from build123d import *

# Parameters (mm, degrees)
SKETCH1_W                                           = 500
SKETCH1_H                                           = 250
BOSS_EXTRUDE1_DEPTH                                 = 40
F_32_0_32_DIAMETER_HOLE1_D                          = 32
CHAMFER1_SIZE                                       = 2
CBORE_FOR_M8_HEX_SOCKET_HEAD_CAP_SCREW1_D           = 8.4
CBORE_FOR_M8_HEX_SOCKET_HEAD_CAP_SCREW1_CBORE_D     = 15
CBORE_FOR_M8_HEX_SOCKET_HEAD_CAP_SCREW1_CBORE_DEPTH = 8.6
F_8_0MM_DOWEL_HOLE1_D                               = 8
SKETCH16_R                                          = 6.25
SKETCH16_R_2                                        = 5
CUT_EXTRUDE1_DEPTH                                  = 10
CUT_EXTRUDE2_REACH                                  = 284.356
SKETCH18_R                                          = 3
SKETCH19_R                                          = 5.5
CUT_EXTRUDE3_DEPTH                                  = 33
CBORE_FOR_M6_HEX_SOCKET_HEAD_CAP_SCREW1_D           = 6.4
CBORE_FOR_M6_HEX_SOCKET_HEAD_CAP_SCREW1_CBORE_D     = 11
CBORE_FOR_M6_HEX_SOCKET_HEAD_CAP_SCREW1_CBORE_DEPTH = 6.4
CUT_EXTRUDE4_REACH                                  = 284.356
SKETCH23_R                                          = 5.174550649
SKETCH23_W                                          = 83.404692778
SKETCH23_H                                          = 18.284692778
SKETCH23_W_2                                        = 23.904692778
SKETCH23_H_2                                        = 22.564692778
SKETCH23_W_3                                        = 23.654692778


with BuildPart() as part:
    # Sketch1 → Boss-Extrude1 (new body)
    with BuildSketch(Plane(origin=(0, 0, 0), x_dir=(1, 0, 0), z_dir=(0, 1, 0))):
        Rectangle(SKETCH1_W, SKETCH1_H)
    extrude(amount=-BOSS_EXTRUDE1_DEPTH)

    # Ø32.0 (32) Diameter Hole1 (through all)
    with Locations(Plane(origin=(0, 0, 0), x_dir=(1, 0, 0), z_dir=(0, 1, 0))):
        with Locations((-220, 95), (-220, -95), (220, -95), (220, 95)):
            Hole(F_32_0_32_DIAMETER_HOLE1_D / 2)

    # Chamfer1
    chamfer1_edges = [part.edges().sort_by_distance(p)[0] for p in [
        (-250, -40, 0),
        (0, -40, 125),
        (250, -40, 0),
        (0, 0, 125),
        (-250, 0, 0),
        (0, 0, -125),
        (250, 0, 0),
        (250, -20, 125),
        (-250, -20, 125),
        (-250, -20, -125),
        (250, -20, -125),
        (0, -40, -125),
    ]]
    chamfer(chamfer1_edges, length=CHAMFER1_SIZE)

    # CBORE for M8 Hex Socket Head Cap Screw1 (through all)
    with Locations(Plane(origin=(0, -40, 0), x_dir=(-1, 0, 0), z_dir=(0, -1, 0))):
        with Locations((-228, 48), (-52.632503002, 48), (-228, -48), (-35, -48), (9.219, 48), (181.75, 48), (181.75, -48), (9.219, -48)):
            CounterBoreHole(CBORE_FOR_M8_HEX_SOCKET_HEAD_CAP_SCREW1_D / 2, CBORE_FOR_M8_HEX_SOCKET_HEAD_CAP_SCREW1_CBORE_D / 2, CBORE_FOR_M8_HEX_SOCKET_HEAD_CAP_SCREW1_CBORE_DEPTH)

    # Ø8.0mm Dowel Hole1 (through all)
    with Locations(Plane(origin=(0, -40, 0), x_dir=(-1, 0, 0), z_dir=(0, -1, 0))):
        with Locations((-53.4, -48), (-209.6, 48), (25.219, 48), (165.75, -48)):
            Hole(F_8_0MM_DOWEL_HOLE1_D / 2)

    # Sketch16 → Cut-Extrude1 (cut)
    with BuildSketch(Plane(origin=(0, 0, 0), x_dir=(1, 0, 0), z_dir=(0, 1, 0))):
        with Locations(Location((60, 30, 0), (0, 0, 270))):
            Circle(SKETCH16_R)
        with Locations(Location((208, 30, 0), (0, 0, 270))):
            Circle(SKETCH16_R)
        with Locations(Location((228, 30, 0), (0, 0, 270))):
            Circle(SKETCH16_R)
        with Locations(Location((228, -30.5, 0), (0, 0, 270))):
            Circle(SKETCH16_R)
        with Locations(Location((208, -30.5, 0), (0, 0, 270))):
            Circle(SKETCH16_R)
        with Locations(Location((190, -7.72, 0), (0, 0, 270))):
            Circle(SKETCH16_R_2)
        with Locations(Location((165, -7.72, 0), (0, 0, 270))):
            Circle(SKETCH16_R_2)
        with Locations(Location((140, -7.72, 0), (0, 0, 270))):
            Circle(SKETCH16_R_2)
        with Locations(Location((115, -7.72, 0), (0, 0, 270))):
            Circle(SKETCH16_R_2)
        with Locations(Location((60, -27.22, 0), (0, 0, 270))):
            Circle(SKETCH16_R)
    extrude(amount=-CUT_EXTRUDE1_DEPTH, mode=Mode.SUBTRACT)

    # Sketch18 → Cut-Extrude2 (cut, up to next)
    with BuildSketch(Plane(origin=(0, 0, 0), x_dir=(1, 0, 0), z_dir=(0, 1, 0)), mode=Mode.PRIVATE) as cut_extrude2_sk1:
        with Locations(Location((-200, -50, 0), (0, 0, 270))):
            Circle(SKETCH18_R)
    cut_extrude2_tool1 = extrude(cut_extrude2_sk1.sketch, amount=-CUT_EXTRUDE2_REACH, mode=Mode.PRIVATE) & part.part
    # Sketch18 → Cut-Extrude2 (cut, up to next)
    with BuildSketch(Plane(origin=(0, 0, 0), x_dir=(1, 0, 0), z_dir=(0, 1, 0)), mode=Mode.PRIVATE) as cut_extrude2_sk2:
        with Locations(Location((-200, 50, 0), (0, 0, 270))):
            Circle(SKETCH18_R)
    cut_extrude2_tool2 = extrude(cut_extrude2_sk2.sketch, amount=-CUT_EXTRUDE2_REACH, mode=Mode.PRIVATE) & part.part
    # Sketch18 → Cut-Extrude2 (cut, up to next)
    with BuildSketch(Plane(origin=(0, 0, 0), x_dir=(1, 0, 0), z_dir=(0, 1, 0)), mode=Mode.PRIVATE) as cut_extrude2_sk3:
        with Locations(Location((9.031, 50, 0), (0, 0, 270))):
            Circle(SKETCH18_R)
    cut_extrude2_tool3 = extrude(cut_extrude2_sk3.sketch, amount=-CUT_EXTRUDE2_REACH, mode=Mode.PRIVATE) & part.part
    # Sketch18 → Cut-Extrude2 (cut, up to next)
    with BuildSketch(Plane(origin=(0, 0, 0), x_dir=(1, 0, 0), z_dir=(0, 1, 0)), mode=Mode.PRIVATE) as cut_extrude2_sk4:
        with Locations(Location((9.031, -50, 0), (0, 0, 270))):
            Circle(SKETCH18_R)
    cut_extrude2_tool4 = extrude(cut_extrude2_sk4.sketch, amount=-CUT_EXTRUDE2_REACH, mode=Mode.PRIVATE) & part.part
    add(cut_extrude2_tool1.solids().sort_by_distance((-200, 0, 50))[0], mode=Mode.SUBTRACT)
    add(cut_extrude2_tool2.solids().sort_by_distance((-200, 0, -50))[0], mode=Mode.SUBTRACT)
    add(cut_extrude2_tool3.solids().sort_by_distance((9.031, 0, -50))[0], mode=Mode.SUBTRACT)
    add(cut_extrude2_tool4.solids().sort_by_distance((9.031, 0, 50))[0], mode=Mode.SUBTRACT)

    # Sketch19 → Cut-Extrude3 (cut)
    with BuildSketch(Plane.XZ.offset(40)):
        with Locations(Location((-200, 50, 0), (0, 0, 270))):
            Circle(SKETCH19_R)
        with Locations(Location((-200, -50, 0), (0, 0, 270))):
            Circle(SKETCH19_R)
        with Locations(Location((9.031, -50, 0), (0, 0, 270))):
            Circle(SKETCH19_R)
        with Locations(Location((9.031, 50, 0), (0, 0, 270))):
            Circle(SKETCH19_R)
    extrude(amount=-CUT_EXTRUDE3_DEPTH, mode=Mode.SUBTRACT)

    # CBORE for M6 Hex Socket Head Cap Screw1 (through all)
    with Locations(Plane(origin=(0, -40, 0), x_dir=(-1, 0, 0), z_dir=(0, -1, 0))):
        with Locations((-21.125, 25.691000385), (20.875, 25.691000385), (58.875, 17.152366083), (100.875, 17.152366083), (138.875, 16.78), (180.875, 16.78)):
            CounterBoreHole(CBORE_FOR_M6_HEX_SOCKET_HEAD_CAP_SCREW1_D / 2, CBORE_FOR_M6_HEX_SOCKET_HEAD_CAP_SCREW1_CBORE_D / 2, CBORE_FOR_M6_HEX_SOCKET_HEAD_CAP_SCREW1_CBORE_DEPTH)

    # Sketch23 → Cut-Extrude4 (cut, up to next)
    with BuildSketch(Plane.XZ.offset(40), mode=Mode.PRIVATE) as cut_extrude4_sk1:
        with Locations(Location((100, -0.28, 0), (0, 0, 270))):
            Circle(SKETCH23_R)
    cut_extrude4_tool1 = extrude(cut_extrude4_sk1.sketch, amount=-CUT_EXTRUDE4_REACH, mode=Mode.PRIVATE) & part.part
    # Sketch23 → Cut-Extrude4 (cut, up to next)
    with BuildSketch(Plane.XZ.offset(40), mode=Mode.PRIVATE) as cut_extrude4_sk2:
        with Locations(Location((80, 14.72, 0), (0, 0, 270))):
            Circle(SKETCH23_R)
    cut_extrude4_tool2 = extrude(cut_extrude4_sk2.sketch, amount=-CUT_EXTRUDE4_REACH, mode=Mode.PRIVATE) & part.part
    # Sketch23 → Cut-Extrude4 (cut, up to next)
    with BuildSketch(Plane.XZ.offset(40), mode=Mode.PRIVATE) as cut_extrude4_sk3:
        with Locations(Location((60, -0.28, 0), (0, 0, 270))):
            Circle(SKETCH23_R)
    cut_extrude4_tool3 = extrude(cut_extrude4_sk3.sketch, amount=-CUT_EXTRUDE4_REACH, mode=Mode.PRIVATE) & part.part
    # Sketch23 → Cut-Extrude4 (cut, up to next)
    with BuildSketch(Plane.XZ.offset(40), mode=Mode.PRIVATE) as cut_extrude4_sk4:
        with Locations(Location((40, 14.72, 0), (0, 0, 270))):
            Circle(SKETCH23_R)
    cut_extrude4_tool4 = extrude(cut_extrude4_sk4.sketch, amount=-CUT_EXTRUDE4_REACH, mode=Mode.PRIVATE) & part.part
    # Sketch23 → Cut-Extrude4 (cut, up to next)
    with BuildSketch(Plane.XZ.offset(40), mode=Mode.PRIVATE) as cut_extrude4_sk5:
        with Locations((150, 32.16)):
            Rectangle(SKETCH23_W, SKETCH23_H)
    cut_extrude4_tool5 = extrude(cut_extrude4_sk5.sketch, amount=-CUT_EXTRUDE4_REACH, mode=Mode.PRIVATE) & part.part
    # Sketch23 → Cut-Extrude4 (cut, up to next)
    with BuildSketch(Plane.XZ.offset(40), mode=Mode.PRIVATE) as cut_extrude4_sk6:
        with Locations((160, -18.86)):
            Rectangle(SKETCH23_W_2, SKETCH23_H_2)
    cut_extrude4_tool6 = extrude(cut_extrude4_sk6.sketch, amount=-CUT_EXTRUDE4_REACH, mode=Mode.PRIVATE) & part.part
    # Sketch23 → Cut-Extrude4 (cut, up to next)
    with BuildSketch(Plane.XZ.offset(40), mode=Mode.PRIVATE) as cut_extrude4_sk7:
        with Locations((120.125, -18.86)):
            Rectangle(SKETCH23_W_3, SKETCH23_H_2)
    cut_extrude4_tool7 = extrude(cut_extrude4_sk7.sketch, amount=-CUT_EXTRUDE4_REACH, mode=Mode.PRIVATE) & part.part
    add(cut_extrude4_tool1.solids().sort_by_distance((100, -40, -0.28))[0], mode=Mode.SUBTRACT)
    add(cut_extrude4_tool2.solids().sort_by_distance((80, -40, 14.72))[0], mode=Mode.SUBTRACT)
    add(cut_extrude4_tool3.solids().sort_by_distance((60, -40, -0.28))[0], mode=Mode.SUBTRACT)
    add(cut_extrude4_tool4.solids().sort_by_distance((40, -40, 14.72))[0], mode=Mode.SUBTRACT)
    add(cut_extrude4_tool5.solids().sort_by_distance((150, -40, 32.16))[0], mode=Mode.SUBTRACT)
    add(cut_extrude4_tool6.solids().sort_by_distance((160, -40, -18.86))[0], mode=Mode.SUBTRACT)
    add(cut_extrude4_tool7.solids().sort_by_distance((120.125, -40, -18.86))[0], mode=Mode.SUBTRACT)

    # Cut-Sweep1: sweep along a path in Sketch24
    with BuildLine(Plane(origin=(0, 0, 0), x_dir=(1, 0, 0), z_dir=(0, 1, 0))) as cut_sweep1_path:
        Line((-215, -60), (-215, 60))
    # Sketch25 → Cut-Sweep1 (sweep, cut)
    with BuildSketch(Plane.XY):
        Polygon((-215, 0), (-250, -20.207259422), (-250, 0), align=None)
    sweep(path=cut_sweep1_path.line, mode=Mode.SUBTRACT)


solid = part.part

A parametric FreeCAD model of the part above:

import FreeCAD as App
import Part
import Sketcher

V = App.Vector
Q = App.Units.Quantity


def edges_at(feature, points):
    """Names of the edges that pass closest to the given points."""
    edges = feature.Shape.Edges
    near = lambda p: min(range(len(edges)), key=lambda i: edges[i].distToShape(Part.Vertex(*p))[0])
    return sorted({f"Edge{near(p) + 1}" for p in points})


def add_polygon(sketch, points):
    """Adds a closed chain of lines whose ends are joined by coincident constraints."""
    first, n = sketch.GeometryCount, len(points)
    for a, b in zip(points, points[1:] + points[:1]):
        sketch.addGeometry(Part.LineSegment(App.Vector(*a, 0), App.Vector(*b, 0)), False)
    for i in range(n):
        sketch.addConstraint(Sketcher.Constraint("Coincident", first + i, 2, first + (i + 1) % n, 1))

doc = App.newDocument("Part")
body = doc.addObject("PartDesign::Body", "Body")

# Sketch on XZ plane
sketch1 = body.newObject("Sketcher::SketchObject", "Sketch")
sketch1.AttachmentSupport = (doc.getObject("XZ_Plane"), [""])
sketch1.MapMode = "FlatFace"
add_polygon(sketch1, [(-250, -125), (-250, 125), (250, 125), (250, -125)])  # lines 0-3
sketch1.addConstraint(Sketcher.Constraint("Vertical", 0))
sketch1.addConstraint(Sketcher.Constraint("Horizontal", 1))
sketch1.addConstraint(Sketcher.Constraint("Vertical", 2))
sketch1.addConstraint(Sketcher.Constraint("Horizontal", 3))
sketch1.addConstraint(Sketcher.Constraint("Symmetric", 0, 2, 2, 2, -1, 1))
sketch1.addConstraint(Sketcher.Constraint("DistanceX", 1, 1, 1, 2, 500.0))
sketch1.addConstraint(Sketcher.Constraint("DistanceY", 0, 1, 0, 2, 250.0))
pad1 = body.newObject("PartDesign::Pad", "Pad")
pad1.Profile = sketch1
pad1.Length = 40

# Sketch on XZ plane
sketch2 = body.newObject("Sketcher::SketchObject", "Sketch001")
sketch2.AttachmentSupport = (doc.getObject("XZ_Plane"), [""])
sketch2.MapMode = "FlatFace"
sketch2.addGeometry(Part.Circle(V(-220, -95, 0), V(0, 0, 1), 16), False)
sketch2.addGeometry(Part.Circle(V(-220, 95, 0), V(0, 0, 1), 16), False)
sketch2.addGeometry(Part.Circle(V(220, 95, 0), V(0, 0, 1), 16), False)
sketch2.addGeometry(Part.Circle(V(220, -95, 0), V(0, 0, 1), 16), False)
sketch2.addConstraint(Sketcher.Constraint("Equal", 0, 1))
sketch2.addConstraint(Sketcher.Constraint("Equal", 1, 2))
sketch2.addConstraint(Sketcher.Constraint("Equal", 2, 3))
sketch2.addConstraint(Sketcher.Constraint("Symmetric", 0, 3, 2, 3, -1, 1))
sketch2.addConstraint(Sketcher.Constraint("Symmetric", 1, 3, 3, 3, -1, 1))
sketch2.addConstraint(Sketcher.Constraint("Symmetric", 1, 3, 2, 3, -2))
sketch2.addConstraint(Sketcher.Constraint("Diameter", 0, 32.0))
sketch2.addConstraint(Sketcher.Constraint("DistanceX", 0, 3, -1, 1, 220.0))
sketch2.addConstraint(Sketcher.Constraint("DistanceY", 0, 3, -1, 1, 95.0))
doc.recompute()
hole = body.newObject("PartDesign::Hole", "Hole")
hole.Profile = sketch2
hole.ThreadType = "None"
hole.Diameter = 32
hole.DepthType = "ThroughAll"
hole.Reversed = True
doc.recompute()

chamfer = body.newObject("PartDesign::Chamfer", "Chamfer")
chamfer.Base = (hole, edges_at(hole, [
    (-250, -40, 0),
    (0, -40, 125),
    (250, -40, 0),
    (0, 0, 125),
    (-250, 0, 0),
    (0, 0, -125),
    (250, 0, 0),
    (250, -20, 125),
    (-250, -20, 125),
    (-250, -20, -125),
    (250, -20, -125),
    (0, -40, -125),
]))
chamfer.Size = 2

# Sketch on XZ plane
sketch3 = body.newObject("Sketcher::SketchObject", "Sketch002")
sketch3.AttachmentSupport = (doc.getObject("XZ_Plane"), [""])
sketch3.MapMode = "FlatFace"
sketch3.AttachmentOffset = App.Placement(V(0, 0, 40), App.Rotation())
sketch3.addGeometry(Part.Circle(V(228, -48, 0), V(0, 0, 1), 4.2), False)
sketch3.addGeometry(Part.Circle(V(52.6, -48, 0), V(0, 0, 1), 4.2), False)
sketch3.addGeometry(Part.Circle(V(228, 48, 0), V(0, 0, 1), 4.2), False)
sketch3.addGeometry(Part.Circle(V(35, 48, 0), V(0, 0, 1), 4.2), False)
sketch3.addGeometry(Part.Circle(V(-9.2, -48, 0), V(0, 0, 1), 4.2), False)
sketch3.addGeometry(Part.Circle(V(-181.8, -48, 0), V(0, 0, 1), 4.2), False)
sketch3.addGeometry(Part.Circle(V(-181.8, 48, 0), V(0, 0, 1), 4.2), False)
sketch3.addGeometry(Part.Circle(V(-9.2, 48, 0), V(0, 0, 1), 4.2), False)
sketch3.addConstraint(Sketcher.Constraint("Equal", 0, 1))
sketch3.addConstraint(Sketcher.Constraint("Equal", 1, 2))
sketch3.addConstraint(Sketcher.Constraint("Equal", 2, 3))
sketch3.addConstraint(Sketcher.Constraint("Equal", 3, 4))
sketch3.addConstraint(Sketcher.Constraint("Equal", 4, 5))
sketch3.addConstraint(Sketcher.Constraint("Equal", 5, 6))
sketch3.addConstraint(Sketcher.Constraint("Equal", 6, 7))
sketch3.addConstraint(Sketcher.Constraint("Symmetric", 0, 3, 2, 3, -1))
sketch3.addConstraint(Sketcher.Constraint("Symmetric", 5, 3, 6, 3, -1))
sketch3.addConstraint(Sketcher.Constraint("Symmetric", 4, 3, 7, 3, -1))
sketch3.addConstraint(Sketcher.Constraint("Horizontal", 0, 3, 1, 3))
sketch3.addConstraint(Sketcher.Constraint("Horizontal", 2, 3, 3, 3))
sketch3.addConstraint(Sketcher.Constraint("Horizontal", 1, 3, 4, 3))
sketch3.addConstraint(Sketcher.Constraint("Horizontal", 4, 3, 5, 3))
sketch3.addConstraint(Sketcher.Constraint("Diameter", 0, 8.4))
sketch3.addConstraint(Sketcher.Constraint("DistanceX", -1, 1, 0, 3, 228.0))
sketch3.addConstraint(Sketcher.Constraint("DistanceY", 0, 3, -1, 1, 48.0))
sketch3.addConstraint(Sketcher.Constraint("DistanceX", -1, 1, 3, 3, 35.0))
sketch3.addConstraint(Sketcher.Constraint("DistanceX", 5, 3, -1, 1, 181.75))
sketch3.addConstraint(Sketcher.Constraint("DistanceX", 4, 3, -1, 1, 9.219))
sketch3.addConstraint(Sketcher.Constraint("DistanceX", -1, 1, 1, 3, 52.632503))
doc.recompute()
hole2 = body.newObject("PartDesign::Hole", "Hole001")
hole2.Profile = sketch3
hole2.ThreadType = "None"
hole2.Diameter = 8.4
hole2.DepthType = "ThroughAll"
hole2.HoleCutType = "Counterbore"
hole2.HoleCutDiameter = 15
hole2.HoleCutDepth = 8.6

# Sketch on XZ plane
sketch4 = body.newObject("Sketcher::SketchObject", "Sketch003")
sketch4.AttachmentSupport = (doc.getObject("XZ_Plane"), [""])
sketch4.MapMode = "FlatFace"
sketch4.AttachmentOffset = App.Placement(V(0, 0, 40), App.Rotation())
sketch4.addGeometry(Part.Circle(V(53.4, 48, 0), V(0, 0, 1), 4), False)
sketch4.addGeometry(Part.Circle(V(209.6, -48, 0), V(0, 0, 1), 4), False)
sketch4.addGeometry(Part.Circle(V(-25.2, -48, 0), V(0, 0, 1), 4), False)
sketch4.addGeometry(Part.Circle(V(-165.8, 48, 0), V(0, 0, 1), 4), False)
sketch4.addConstraint(Sketcher.Constraint("Equal", 0, 1))
sketch4.addConstraint(Sketcher.Constraint("Equal", 1, 2))
sketch4.addConstraint(Sketcher.Constraint("Equal", 2, 3))
sketch4.addConstraint(Sketcher.Constraint("Horizontal", 1, 3, 2, 3))
sketch4.addConstraint(Sketcher.Constraint("Horizontal", 0, 3, 3, 3))
sketch4.addConstraint(Sketcher.Constraint("Diameter", 0, 8.0))
sketch4.addConstraint(Sketcher.Constraint("DistanceY", -1, 1, 0, 3, 48.0))
sketch4.addConstraint(Sketcher.Constraint("DistanceY", 1, 3, -1, 1, 48.0))
sketch4.addConstraint(Sketcher.Constraint("DistanceX", -1, 1, 0, 3, 53.4))
sketch4.addConstraint(Sketcher.Constraint("DistanceX", -1, 1, 1, 3, 209.6))
sketch4.addConstraint(Sketcher.Constraint("DistanceX", 3, 3, -1, 1, 165.75))
sketch4.addConstraint(Sketcher.Constraint("DistanceX", 2, 3, -1, 1, 25.219))
doc.recompute()
hole3 = body.newObject("PartDesign::Hole", "Hole002")
hole3.Profile = sketch4
hole3.ThreadType = "None"
hole3.Diameter = 8
hole3.DepthType = "ThroughAll"

# Sketch on XZ plane
sketch5 = body.newObject("Sketcher::SketchObject", "Sketch004")
sketch5.AttachmentSupport = (doc.getObject("XZ_Plane"), [""])
sketch5.MapMode = "FlatFace"
sketch5.addGeometry(Part.Circle(V(60, -30, 0), V(0, 0, 1), 6), False)
sketch5.addGeometry(Part.Circle(V(208, -30, 0), V(0, 0, 1), 6), False)
sketch5.addGeometry(Part.Circle(V(228, -30, 0), V(0, 0, 1), 6), False)
sketch5.addGeometry(Part.Circle(V(228, 30, 0), V(0, 0, 1), 6), False)
sketch5.addGeometry(Part.Circle(V(208, 30, 0), V(0, 0, 1), 6), False)
sketch5.addGeometry(Part.Circle(V(190, 8, 0), V(0, 0, 1), 5), False)
sketch5.addGeometry(Part.Circle(V(165, 8, 0), V(0, 0, 1), 5), False)
sketch5.addGeometry(Part.Circle(V(140, 8, 0), V(0, 0, 1), 5), False)
sketch5.addGeometry(Part.Circle(V(115, 8, 0), V(0, 0, 1), 5), False)
sketch5.addGeometry(Part.Circle(V(60, 27, 0), V(0, 0, 1), 6), False)
sketch5.addConstraint(Sketcher.Constraint("Equal", 0, 1))
sketch5.addConstraint(Sketcher.Constraint("Equal", 1, 2))
sketch5.addConstraint(Sketcher.Constraint("Equal", 2, 3))
sketch5.addConstraint(Sketcher.Constraint("Equal", 3, 4))
sketch5.addConstraint(Sketcher.Constraint("Equal", 5, 6))
sketch5.addConstraint(Sketcher.Constraint("Equal", 6, 7))
sketch5.addConstraint(Sketcher.Constraint("Equal", 7, 8))
sketch5.addConstraint(Sketcher.Constraint("Equal", 4, 9))
sketch5.addConstraint(Sketcher.Constraint("Horizontal", 0, 3, 1, 3))
sketch5.addConstraint(Sketcher.Constraint("Horizontal", 1, 3, 2, 3))
sketch5.addConstraint(Sketcher.Constraint("Horizontal", 3, 3, 4, 3))
sketch5.addConstraint(Sketcher.Constraint("Horizontal", 5, 3, 6, 3))
sketch5.addConstraint(Sketcher.Constraint("Horizontal", 6, 3, 7, 3))
sketch5.addConstraint(Sketcher.Constraint("Horizontal", 7, 3, 8, 3))
sketch5.addConstraint(Sketcher.Constraint("Vertical", 2, 3, 3, 3))
sketch5.addConstraint(Sketcher.Constraint("Vertical", 1, 3, 4, 3))
sketch5.addConstraint(Sketcher.Constraint("Vertical", 0, 3, 9, 3))
sketch5.addConstraint(Sketcher.Constraint("Diameter", 5, 10.0))
sketch5.addConstraint(Sketcher.Constraint("Diameter", 0, 12.5))
sketch5.addConstraint(Sketcher.Constraint("DistanceX", -1, 1, 0, 3, 60.0))
sketch5.addConstraint(Sketcher.Constraint("DistanceY", 0, 3, -1, 1, 30.0))
sketch5.addConstraint(Sketcher.Constraint("DistanceX", -1, 1, 1, 3, 208.0))
sketch5.addConstraint(Sketcher.Constraint("DistanceX", -1, 1, 2, 3, 228.0))
sketch5.addConstraint(Sketcher.Constraint("DistanceX", -1, 1, 5, 3, 190.0))
sketch5.addConstraint(Sketcher.Constraint("DistanceX", -1, 1, 6, 3, 165.0))
sketch5.addConstraint(Sketcher.Constraint("DistanceX", -1, 1, 7, 3, 140.0))
sketch5.addConstraint(Sketcher.Constraint("DistanceX", -1, 1, 8, 3, 115.0))
sketch5.addConstraint(Sketcher.Constraint("DistanceY", -1, 1, 3, 3, 30.5))
sketch5.addConstraint(Sketcher.Constraint("DistanceY", 8, 3, 9, 3, 19.5))
sketch5.addConstraint(Sketcher.Constraint("DistanceY", -1, 1, 5, 3, 7.72))
pocket1 = body.newObject("PartDesign::Pocket", "Pocket")
pocket1.Profile = sketch5
pocket1.Length = 10
pocket1.Reversed = True

# Sketch on XZ plane
sketch6 = body.newObject("Sketcher::SketchObject", "Sketch005")
sketch6.AttachmentSupport = (doc.getObject("XZ_Plane"), [""])
sketch6.MapMode = "FlatFace"
sketch6.addGeometry(Part.Circle(V(-200, 50, 0), V(0, 0, 1), 3), False)
sketch6.addConstraint(Sketcher.Constraint("Diameter", 0, 6.0))
sketch6.addConstraint(Sketcher.Constraint("DistanceX", 0, 3, -1, 1, 200.0))
sketch6.addConstraint(Sketcher.Constraint("DistanceY", -1, 1, 0, 3, 50.0))
pocket2 = body.newObject("PartDesign::Pocket", "Pocket001")
pocket2.Profile = sketch6
pocket2.Type = "UpToFirst"
pocket2.Reversed = True

# Sketch on XZ plane
sketch7 = body.newObject("Sketcher::SketchObject", "Sketch006")
sketch7.AttachmentSupport = (doc.getObject("XZ_Plane"), [""])
sketch7.MapMode = "FlatFace"
sketch7.addGeometry(Part.Circle(V(-200, -50, 0), V(0, 0, 1), 3), False)
sketch7.addConstraint(Sketcher.Constraint("Diameter", 0, 6.0))
sketch7.addConstraint(Sketcher.Constraint("DistanceX", 0, 3, -1, 1, 200.0))
sketch7.addConstraint(Sketcher.Constraint("DistanceY", 0, 3, -1, 1, 50.0))
pocket3 = body.newObject("PartDesign::Pocket", "Pocket002")
pocket3.Profile = sketch7
pocket3.Type = "UpToFirst"
pocket3.Reversed = True

# Sketch on XZ plane
sketch8 = body.newObject("Sketcher::SketchObject", "Sketch007")
sketch8.AttachmentSupport = (doc.getObject("XZ_Plane"), [""])
sketch8.MapMode = "FlatFace"
sketch8.addGeometry(Part.Circle(V(9, -50, 0), V(0, 0, 1), 3), False)
sketch8.addConstraint(Sketcher.Constraint("Diameter", 0, 6.0))
sketch8.addConstraint(Sketcher.Constraint("DistanceY", 0, 3, -1, 1, 50.0))
sketch8.addConstraint(Sketcher.Constraint("DistanceX", -1, 1, 0, 3, 9.031))
pocket4 = body.newObject("PartDesign::Pocket", "Pocket003")
pocket4.Profile = sketch8
pocket4.Type = "UpToFirst"
pocket4.Reversed = True

# Sketch on XZ plane
sketch9 = body.newObject("Sketcher::SketchObject", "Sketch008")
sketch9.AttachmentSupport = (doc.getObject("XZ_Plane"), [""])
sketch9.MapMode = "FlatFace"
sketch9.addGeometry(Part.Circle(V(9, 50, 0), V(0, 0, 1), 3), False)
sketch9.addConstraint(Sketcher.Constraint("Diameter", 0, 6.0))
sketch9.addConstraint(Sketcher.Constraint("DistanceY", -1, 1, 0, 3, 50.0))
sketch9.addConstraint(Sketcher.Constraint("DistanceX", -1, 1, 0, 3, 9.031))
pocket5 = body.newObject("PartDesign::Pocket", "Pocket004")
pocket5.Profile = sketch9
pocket5.Type = "UpToFirst"
pocket5.Reversed = True

# Sketch on XZ plane
sketch10 = body.newObject("Sketcher::SketchObject", "Sketch009")
sketch10.AttachmentSupport = (doc.getObject("XZ_Plane"), [""])
sketch10.MapMode = "FlatFace"
sketch10.AttachmentOffset = App.Placement(V(0, 0, 40), App.Rotation())
sketch10.addGeometry(Part.Circle(V(-200, 50, 0), V(0, 0, 1), 6), False)
sketch10.addGeometry(Part.Circle(V(-200, -50, 0), V(0, 0, 1), 6), False)
sketch10.addGeometry(Part.Circle(V(9, -50, 0), V(0, 0, 1), 6), False)
sketch10.addGeometry(Part.Circle(V(9, 50, 0), V(0, 0, 1), 6), False)
sketch10.addConstraint(Sketcher.Constraint("Equal", 0, 1))
sketch10.addConstraint(Sketcher.Constraint("Equal", 1, 2))
sketch10.addConstraint(Sketcher.Constraint("Equal", 2, 3))
sketch10.addConstraint(Sketcher.Constraint("Symmetric", 0, 3, 1, 3, -1))
sketch10.addConstraint(Sketcher.Constraint("Symmetric", 2, 3, 3, 3, -1))
sketch10.addConstraint(Sketcher.Constraint("Horizontal", 1, 3, 2, 3))
sketch10.addConstraint(Sketcher.Constraint("Diameter", 0, 11.0))
sketch10.addConstraint(Sketcher.Constraint("DistanceX", 0, 3, -1, 1, 200.0))
sketch10.addConstraint(Sketcher.Constraint("DistanceY", -1, 1, 0, 3, 50.0))
sketch10.addConstraint(Sketcher.Constraint("DistanceX", -1, 1, 2, 3, 9.031))
pocket6 = body.newObject("PartDesign::Pocket", "Pocket005")
pocket6.Profile = sketch10
pocket6.Length = 33

# Sketch on XZ plane
sketch11 = body.newObject("Sketcher::SketchObject", "Sketch010")
sketch11.AttachmentSupport = (doc.getObject("XZ_Plane"), [""])
sketch11.MapMode = "FlatFace"
sketch11.AttachmentOffset = App.Placement(V(0, 0, 40), App.Rotation())
sketch11.addGeometry(Part.Circle(V(21.1, -25.7, 0), V(0, 0, 1), 3.2), False)
sketch11.addGeometry(Part.Circle(V(-20.9, -25.7, 0), V(0, 0, 1), 3.2), False)
sketch11.addGeometry(Part.Circle(V(-58.9, -17.2, 0), V(0, 0, 1), 3.2), False)
sketch11.addGeometry(Part.Circle(V(-100.9, -17.2, 0), V(0, 0, 1), 3.2), False)
sketch11.addGeometry(Part.Circle(V(-138.9, -16.8, 0), V(0, 0, 1), 3.2), False)
sketch11.addGeometry(Part.Circle(V(-180.9, -16.8, 0), V(0, 0, 1), 3.2), False)
sketch11.addConstraint(Sketcher.Constraint("Equal", 0, 1))
sketch11.addConstraint(Sketcher.Constraint("Equal", 1, 2))
sketch11.addConstraint(Sketcher.Constraint("Equal", 2, 3))
sketch11.addConstraint(Sketcher.Constraint("Equal", 3, 4))
sketch11.addConstraint(Sketcher.Constraint("Equal", 4, 5))
sketch11.addConstraint(Sketcher.Constraint("Horizontal", 0, 3, 1, 3))
sketch11.addConstraint(Sketcher.Constraint("Horizontal", 2, 3, 3, 3))
sketch11.addConstraint(Sketcher.Constraint("Horizontal", 4, 3, 5, 3))
sketch11.addConstraint(Sketcher.Constraint("Diameter", 0, 6.4))
sketch11.addConstraint(Sketcher.Constraint("DistanceX", 1, 3, 0, 3, 42.0))
sketch11.addConstraint(Sketcher.Constraint("DistanceX", 2, 3, 1, 3, 38.0))
sketch11.addConstraint(Sketcher.Constraint("DistanceX", 3, 3, 2, 3, 42.0))
sketch11.addConstraint(Sketcher.Constraint("DistanceX", 4, 3, 3, 3, 38.0))
sketch11.addConstraint(Sketcher.Constraint("DistanceX", 5, 3, 4, 3, 42.0))
sketch11.addConstraint(Sketcher.Constraint("DistanceY", 4, 3, -1, 1, 16.78))
sketch11.addConstraint(Sketcher.Constraint("DistanceX", -1, 1, 0, 3, 21.125))
sketch11.addConstraint(Sketcher.Constraint("DistanceY", 0, 3, -1, 1, 25.691))
sketch11.addConstraint(Sketcher.Constraint("DistanceY", 2, 3, -1, 1, 17.152366))
doc.recompute()
hole4 = body.newObject("PartDesign::Hole", "Hole003")
hole4.Profile = sketch11
hole4.ThreadType = "None"
hole4.Diameter = 6.4
hole4.DepthType = "ThroughAll"
hole4.HoleCutType = "Counterbore"
hole4.HoleCutDiameter = 11
hole4.HoleCutDepth = 6.4

# Sketch on XZ plane
sketch12 = body.newObject("Sketcher::SketchObject", "Sketch011")
sketch12.AttachmentSupport = (doc.getObject("XZ_Plane"), [""])
sketch12.MapMode = "FlatFace"
sketch12.AttachmentOffset = App.Placement(V(0, 0, 40), App.Rotation())
sketch12.addGeometry(Part.Circle(V(100, 0, 0), V(0, 0, 1), 5), False)
sketch12.addConstraint(Sketcher.Constraint("DistanceX", -1, 1, 0, 3, 100.0))
sketch12.addConstraint(Sketcher.Constraint("Diameter", 0, 10.349101))
sketch12.addConstraint(Sketcher.Constraint("DistanceY", 0, 3, -1, 1, 0.28))
pocket7 = body.newObject("PartDesign::Pocket", "Pocket006")
pocket7.Profile = sketch12
pocket7.Type = "UpToFirst"

# Sketch on XZ plane
sketch13 = body.newObject("Sketcher::SketchObject", "Sketch012")
sketch13.AttachmentSupport = (doc.getObject("XZ_Plane"), [""])
sketch13.MapMode = "FlatFace"
sketch13.AttachmentOffset = App.Placement(V(0, 0, 40), App.Rotation())
sketch13.addGeometry(Part.Circle(V(80, 15, 0), V(0, 0, 1), 5), False)
sketch13.addConstraint(Sketcher.Constraint("DistanceX", -1, 1, 0, 3, 80.0))
sketch13.addConstraint(Sketcher.Constraint("Diameter", 0, 10.349101))
sketch13.addConstraint(Sketcher.Constraint("DistanceY", -1, 1, 0, 3, 14.72))
pocket8 = body.newObject("PartDesign::Pocket", "Pocket007")
pocket8.Profile = sketch13
pocket8.Type = "UpToFirst"

# Sketch on XZ plane
sketch14 = body.newObject("Sketcher::SketchObject", "Sketch013")
sketch14.AttachmentSupport = (doc.getObject("XZ_Plane"), [""])
sketch14.MapMode = "FlatFace"
sketch14.AttachmentOffset = App.Placement(V(0, 0, 40), App.Rotation())
sketch14.addGeometry(Part.Circle(V(60, 0, 0), V(0, 0, 1), 5), False)
sketch14.addConstraint(Sketcher.Constraint("DistanceX", -1, 1, 0, 3, 60.0))
sketch14.addConstraint(Sketcher.Constraint("Diameter", 0, 10.349101))
sketch14.addConstraint(Sketcher.Constraint("DistanceY", 0, 3, -1, 1, 0.28))
pocket9 = body.newObject("PartDesign::Pocket", "Pocket008")
pocket9.Profile = sketch14
pocket9.Type = "UpToFirst"

# Sketch on XZ plane
sketch15 = body.newObject("Sketcher::SketchObject", "Sketch014")
sketch15.AttachmentSupport = (doc.getObject("XZ_Plane"), [""])
sketch15.MapMode = "FlatFace"
sketch15.AttachmentOffset = App.Placement(V(0, 0, 40), App.Rotation())
sketch15.addGeometry(Part.Circle(V(40, 15, 0), V(0, 0, 1), 5), False)
sketch15.addConstraint(Sketcher.Constraint("DistanceX", -1, 1, 0, 3, 40.0))
sketch15.addConstraint(Sketcher.Constraint("Diameter", 0, 10.349101))
sketch15.addConstraint(Sketcher.Constraint("DistanceY", -1, 1, 0, 3, 14.72))
pocket10 = body.newObject("PartDesign::Pocket", "Pocket009")
pocket10.Profile = sketch15
pocket10.Type = "UpToFirst"

# Sketch on XZ plane
sketch16 = body.newObject("Sketcher::SketchObject", "Sketch015")
sketch16.AttachmentSupport = (doc.getObject("XZ_Plane"), [""])
sketch16.MapMode = "FlatFace"
sketch16.AttachmentOffset = App.Placement(V(0, 0, 40), App.Rotation())
add_polygon(sketch16, [(108, 41), (108, 23), (192, 23), (192, 41)])  # lines 0-3
sketch16.addConstraint(Sketcher.Constraint("Vertical", 0))
sketch16.addConstraint(Sketcher.Constraint("Horizontal", 1))
sketch16.addConstraint(Sketcher.Constraint("Vertical", 2))
sketch16.addConstraint(Sketcher.Constraint("Horizontal", 3))
sketch16.addConstraint(Sketcher.Constraint("DistanceX", 1, 1, 1, 2, 83.404693))
sketch16.addConstraint(Sketcher.Constraint("DistanceY", 0, 2, 0, 1, 18.284693))
sketch16.addConstraint(Sketcher.Constraint("DistanceX", -1, 1, 0, 2, 108.297654))
sketch16.addConstraint(Sketcher.Constraint("DistanceY", -1, 1, 0, 2, 23.017654))
pocket11 = body.newObject("PartDesign::Pocket", "Pocket010")
pocket11.Profile = sketch16
pocket11.Type = "UpToFirst"

# Sketch on XZ plane
sketch17 = body.newObject("Sketcher::SketchObject", "Sketch016")
sketch17.AttachmentSupport = (doc.getObject("XZ_Plane"), [""])
sketch17.MapMode = "FlatFace"
sketch17.AttachmentOffset = App.Placement(V(0, 0, 40), App.Rotation())
add_polygon(sketch17, [(148, -8), (148, -30), (172, -30), (172, -8)])  # lines 0-3
sketch17.addConstraint(Sketcher.Constraint("Vertical", 0))
sketch17.addConstraint(Sketcher.Constraint("Horizontal", 1))
sketch17.addConstraint(Sketcher.Constraint("Vertical", 2))
sketch17.addConstraint(Sketcher.Constraint("Horizontal", 3))
sketch17.addConstraint(Sketcher.Constraint("DistanceX", 1, 1, 1, 2, 23.904693))
sketch17.addConstraint(Sketcher.Constraint("DistanceY", 0, 2, 0, 1, 22.564693))
sketch17.addConstraint(Sketcher.Constraint("DistanceX", -1, 1, 0, 2, 148.047654))
sketch17.addConstraint(Sketcher.Constraint("DistanceY", 0, 2, -1, 1, 30.142346))
pocket12 = body.newObject("PartDesign::Pocket", "Pocket011")
pocket12.Profile = sketch17
pocket12.Type = "UpToFirst"

# Sketch on XZ plane
sketch18 = body.newObject("Sketcher::SketchObject", "Sketch017")
sketch18.AttachmentSupport = (doc.getObject("XZ_Plane"), [""])
sketch18.MapMode = "FlatFace"
sketch18.AttachmentOffset = App.Placement(V(0, 0, 40), App.Rotation())
add_polygon(sketch18, [(108, -8), (108, -30), (132, -30), (132, -8)])  # lines 0-3
sketch18.addConstraint(Sketcher.Constraint("Vertical", 0))
sketch18.addConstraint(Sketcher.Constraint("Horizontal", 1))
sketch18.addConstraint(Sketcher.Constraint("Vertical", 2))
sketch18.addConstraint(Sketcher.Constraint("Horizontal", 3))
sketch18.addConstraint(Sketcher.Constraint("DistanceX", 1, 1, 1, 2, 23.654693))
sketch18.addConstraint(Sketcher.Constraint("DistanceY", 0, 2, 0, 1, 22.564693))
sketch18.addConstraint(Sketcher.Constraint("DistanceX", -1, 1, 0, 2, 108.297654))
sketch18.addConstraint(Sketcher.Constraint("DistanceY", 0, 2, -1, 1, 30.142346))
pocket13 = body.newObject("PartDesign::Pocket", "Pocket012")
pocket13.Profile = sketch18
pocket13.Type = "UpToFirst"

# Sketch on XY plane
sketch19 = body.newObject("Sketcher::SketchObject", "Sketch018")
sketch19.AttachmentSupport = (doc.getObject("XY_Plane"), [""])
sketch19.MapMode = "FlatFace"
add_polygon(sketch19, [(-250, -20.207259), (-215, 0), (-250, 0)])  # lines 0-2
sketch19.addConstraint(Sketcher.Constraint("Horizontal", 1))
sketch19.addConstraint(Sketcher.Constraint("Vertical", 2))
sketch19.addConstraint(Sketcher.Constraint("PointOnObject", 0, 2, -1))
sketch19.addConstraint(Sketcher.Constraint("DistanceX", 1, 2, 1, 1, 35.0))
sketch19.addConstraint(Sketcher.Constraint("Angle", 0, Q("30 deg")))
sketch19.addConstraint(Sketcher.Constraint("DistanceX", 0, 2, -1, 1, 215.0))

# Sketch on XZ plane
sketch20 = body.newObject("Sketcher::SketchObject", "Sketch019")
sketch20.AttachmentSupport = (doc.getObject("XZ_Plane"), [""])
sketch20.MapMode = "FlatFace"
sketch20.addGeometry(Part.LineSegment(V(-215, 60, 0), V(-215, -60, 0)), False)
sketch20.addConstraint(Sketcher.Constraint("Vertical", 0))
sketch20.addConstraint(Sketcher.Constraint("DistanceY", 0, 2, 0, 1, 120.0))
sketch20.addConstraint(Sketcher.Constraint("DistanceX", 0, 1, -1, 1, 215.0))
sketch20.addConstraint(Sketcher.Constraint("DistanceY", -1, 1, 0, 1, 60.0))
doc.recompute()

subtractivepipe = body.newObject("PartDesign::SubtractivePipe", "SubtractivePipe")
subtractivepipe.Profile = sketch19
subtractivepipe.Spine = (sketch20, ["Edge1"])

doc.recompute()
